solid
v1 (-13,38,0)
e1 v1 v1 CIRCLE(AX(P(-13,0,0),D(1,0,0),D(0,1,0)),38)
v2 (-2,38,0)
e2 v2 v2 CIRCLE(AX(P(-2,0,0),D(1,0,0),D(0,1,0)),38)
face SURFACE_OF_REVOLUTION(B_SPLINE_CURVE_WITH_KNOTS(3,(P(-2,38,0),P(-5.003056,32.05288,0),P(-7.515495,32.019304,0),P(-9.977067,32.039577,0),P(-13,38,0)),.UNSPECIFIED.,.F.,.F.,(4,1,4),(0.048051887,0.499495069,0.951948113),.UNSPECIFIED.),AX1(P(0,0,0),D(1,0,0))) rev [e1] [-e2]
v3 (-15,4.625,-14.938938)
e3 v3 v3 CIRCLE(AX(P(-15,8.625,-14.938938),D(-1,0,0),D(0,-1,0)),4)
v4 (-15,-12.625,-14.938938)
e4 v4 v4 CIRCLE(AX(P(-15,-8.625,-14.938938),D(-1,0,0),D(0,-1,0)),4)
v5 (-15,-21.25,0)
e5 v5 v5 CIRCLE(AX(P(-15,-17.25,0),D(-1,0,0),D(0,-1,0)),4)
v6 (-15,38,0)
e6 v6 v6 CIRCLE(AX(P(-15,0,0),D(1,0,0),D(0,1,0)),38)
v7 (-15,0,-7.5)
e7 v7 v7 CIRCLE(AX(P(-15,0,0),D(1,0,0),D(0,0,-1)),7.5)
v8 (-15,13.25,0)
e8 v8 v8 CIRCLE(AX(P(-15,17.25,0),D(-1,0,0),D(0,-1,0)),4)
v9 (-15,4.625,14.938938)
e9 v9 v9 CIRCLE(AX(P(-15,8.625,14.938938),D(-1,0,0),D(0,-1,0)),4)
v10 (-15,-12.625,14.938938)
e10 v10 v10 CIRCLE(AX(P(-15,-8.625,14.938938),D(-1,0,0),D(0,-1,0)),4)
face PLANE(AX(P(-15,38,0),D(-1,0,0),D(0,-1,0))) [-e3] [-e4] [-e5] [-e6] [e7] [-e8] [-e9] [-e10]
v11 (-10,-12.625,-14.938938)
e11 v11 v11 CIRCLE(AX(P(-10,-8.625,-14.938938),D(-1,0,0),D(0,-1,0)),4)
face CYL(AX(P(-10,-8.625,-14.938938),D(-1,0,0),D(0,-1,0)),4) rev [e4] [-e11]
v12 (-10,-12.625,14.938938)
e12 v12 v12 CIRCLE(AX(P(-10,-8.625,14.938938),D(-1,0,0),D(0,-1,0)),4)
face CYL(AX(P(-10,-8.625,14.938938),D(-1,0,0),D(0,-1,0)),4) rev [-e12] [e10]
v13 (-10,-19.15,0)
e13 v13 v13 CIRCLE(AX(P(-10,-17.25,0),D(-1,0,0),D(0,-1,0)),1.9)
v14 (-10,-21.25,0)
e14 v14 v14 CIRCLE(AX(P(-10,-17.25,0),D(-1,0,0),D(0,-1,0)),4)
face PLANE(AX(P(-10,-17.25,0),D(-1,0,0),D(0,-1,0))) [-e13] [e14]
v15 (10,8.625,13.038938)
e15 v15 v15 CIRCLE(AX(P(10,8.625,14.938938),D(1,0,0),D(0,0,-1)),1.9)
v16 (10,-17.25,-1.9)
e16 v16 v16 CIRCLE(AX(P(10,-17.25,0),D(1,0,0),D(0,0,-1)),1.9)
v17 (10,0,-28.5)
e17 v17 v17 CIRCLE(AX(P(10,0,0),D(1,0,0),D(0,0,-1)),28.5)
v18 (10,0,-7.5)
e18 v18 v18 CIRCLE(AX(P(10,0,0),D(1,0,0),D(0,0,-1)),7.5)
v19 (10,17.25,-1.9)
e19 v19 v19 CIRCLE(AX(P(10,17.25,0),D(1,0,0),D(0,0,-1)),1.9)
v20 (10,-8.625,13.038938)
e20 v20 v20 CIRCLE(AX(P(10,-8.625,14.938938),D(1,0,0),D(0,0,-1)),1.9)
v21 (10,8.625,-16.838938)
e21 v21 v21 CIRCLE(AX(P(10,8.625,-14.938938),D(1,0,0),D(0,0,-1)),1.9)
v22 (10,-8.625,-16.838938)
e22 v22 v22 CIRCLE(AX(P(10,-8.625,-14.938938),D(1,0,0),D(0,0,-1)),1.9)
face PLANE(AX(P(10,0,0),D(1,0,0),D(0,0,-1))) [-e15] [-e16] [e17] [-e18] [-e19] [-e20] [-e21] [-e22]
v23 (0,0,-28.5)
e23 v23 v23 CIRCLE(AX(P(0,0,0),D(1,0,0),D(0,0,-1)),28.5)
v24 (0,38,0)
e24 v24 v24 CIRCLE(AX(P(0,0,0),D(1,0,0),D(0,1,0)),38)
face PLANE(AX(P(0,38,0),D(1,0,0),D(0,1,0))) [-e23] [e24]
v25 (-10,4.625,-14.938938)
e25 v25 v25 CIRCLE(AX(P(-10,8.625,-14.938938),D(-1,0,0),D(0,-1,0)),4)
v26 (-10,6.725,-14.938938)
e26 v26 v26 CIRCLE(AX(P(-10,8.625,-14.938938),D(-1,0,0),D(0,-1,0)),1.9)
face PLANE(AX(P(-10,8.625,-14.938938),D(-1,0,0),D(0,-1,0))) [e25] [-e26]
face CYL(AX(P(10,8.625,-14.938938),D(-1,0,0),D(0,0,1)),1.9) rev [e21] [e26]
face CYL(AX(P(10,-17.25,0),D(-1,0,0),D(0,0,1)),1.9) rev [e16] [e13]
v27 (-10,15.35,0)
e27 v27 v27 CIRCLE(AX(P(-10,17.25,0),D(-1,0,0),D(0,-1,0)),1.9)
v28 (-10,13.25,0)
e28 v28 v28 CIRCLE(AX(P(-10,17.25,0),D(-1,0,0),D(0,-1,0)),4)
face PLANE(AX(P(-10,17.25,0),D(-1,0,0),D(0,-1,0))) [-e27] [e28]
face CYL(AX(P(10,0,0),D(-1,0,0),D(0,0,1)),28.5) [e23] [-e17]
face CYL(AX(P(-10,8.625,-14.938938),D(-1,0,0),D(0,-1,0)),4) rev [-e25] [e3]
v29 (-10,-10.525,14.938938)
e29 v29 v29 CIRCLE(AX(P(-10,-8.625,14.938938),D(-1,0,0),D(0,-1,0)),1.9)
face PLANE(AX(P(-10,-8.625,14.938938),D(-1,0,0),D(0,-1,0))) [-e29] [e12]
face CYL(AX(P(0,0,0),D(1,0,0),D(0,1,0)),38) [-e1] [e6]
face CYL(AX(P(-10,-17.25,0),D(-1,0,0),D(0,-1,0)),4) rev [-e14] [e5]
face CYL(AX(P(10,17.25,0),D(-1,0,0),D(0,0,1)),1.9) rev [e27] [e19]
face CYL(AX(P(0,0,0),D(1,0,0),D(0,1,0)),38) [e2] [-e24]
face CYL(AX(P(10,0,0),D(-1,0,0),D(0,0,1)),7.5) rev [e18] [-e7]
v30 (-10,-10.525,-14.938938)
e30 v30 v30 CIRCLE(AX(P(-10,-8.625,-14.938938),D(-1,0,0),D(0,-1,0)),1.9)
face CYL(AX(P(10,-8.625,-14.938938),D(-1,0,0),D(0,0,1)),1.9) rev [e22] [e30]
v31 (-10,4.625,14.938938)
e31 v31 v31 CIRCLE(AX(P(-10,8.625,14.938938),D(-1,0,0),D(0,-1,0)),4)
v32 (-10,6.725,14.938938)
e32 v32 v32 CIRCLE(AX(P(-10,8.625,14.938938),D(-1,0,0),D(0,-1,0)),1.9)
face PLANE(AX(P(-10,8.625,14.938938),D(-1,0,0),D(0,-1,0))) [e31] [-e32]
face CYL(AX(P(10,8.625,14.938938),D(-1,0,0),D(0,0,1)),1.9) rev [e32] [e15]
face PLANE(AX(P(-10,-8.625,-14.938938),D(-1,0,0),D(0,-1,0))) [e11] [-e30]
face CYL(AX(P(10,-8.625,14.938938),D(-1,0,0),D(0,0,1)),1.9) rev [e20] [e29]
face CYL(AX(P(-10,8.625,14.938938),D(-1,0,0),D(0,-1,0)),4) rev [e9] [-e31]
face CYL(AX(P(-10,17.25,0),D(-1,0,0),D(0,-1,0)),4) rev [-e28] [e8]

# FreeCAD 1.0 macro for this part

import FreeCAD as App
import Part
import Sketcher

doc = App.newDocument("Part")
params = doc.addObject("Spreadsheet::Sheet", "Params")
for row, (alias, value) in enumerate([
    ("sketch1_diameter", "57 mm"),
    ("sketch1_diameter2", "15 mm"),
    ("sketch1_diameter3", "3.8 mm"),
    ("pad1_length", "10 mm"),
    ("sketch2_width", "15 mm"),
    ("revolution_angle", "360 deg"),
    ("sketch3_diameter", "15 mm"),
    ("sketch3_diameter2", "3.8 mm"),
    ("sketch4_diameter", "8 mm"),
    ("pocket2_length", "5 mm"),
], start=1):
    params.set(f"A{row}", alias)
    params.set(f"B{row}", "=" + value)
    params.setAlias(f"B{row}", alias)

body = doc.addObject("PartDesign::Body", "Body")

sketch1 = body.newObject("Sketcher::SketchObject", "Sketch")
sketch1.AttachmentSupport = (doc.getObject("YZ_Plane"), [""])
sketch1.MapMode = "FlatFace"
sketch1.addGeometry(Part.Circle(App.Vector(0, 0, 0), App.Vector(0, 0, 1), 28.5), False)
sketch1.addGeometry(Part.Circle(App.Vector(-8.6, 14.9, 0), App.Vector(0, 0, 1), 1.9), False)
sketch1.addGeometry(Part.Circle(App.Vector(-17.2, 0, 0), App.Vector(0, 0, 1), 1.9), False)
sketch1.addGeometry(Part.Circle(App.Vector(-8.6, -14.9, 0), App.Vector(0, 0, 1), 1.9), False)
sketch1.addGeometry(Part.Circle(App.Vector(8.6, 14.9, 0), App.Vector(0, 0, 1), 1.9), False)
sketch1.addGeometry(Part.Circle(App.Vector(0, 0, 0), App.Vector(0, 0, 1), 7.5), False)
sketch1.addGeometry(Part.Circle(App.Vector(8.6, -14.9, 0), App.Vector(0, 0, 1), 1.9), False)
sketch1.addGeometry(Part.Circle(App.Vector(17.2, 0, 0), App.Vector(0, 0, 1), 1.9), False)
sketch1.addConstraint(Sketcher.Constraint("Coincident", 0, 3, -1, 1))
sketch1.addConstraint(Sketcher.Constraint("Coincident", 5, 3, -1, 1))
sketch1.addConstraint(Sketcher.Constraint("Equal", 1, 2))
sketch1.addConstraint(Sketcher.Constraint("Equal", 2, 3))
sketch1.addConstraint(Sketcher.Constraint("Equal", 3, 4))
sketch1.addConstraint(Sketcher.Constraint("Equal", 4, 6))
sketch1.addConstraint(Sketcher.Constraint("Equal", 6, 7))
sketch1.addConstraint(Sketcher.Constraint("Symmetric", 3, 3, 4, 3, -1, 1))
sketch1.addConstraint(Sketcher.Constraint("Symmetric", 1, 3, 6, 3, -1, 1))
sketch1.addConstraint(Sketcher.Constraint("Symmetric", 2, 3, 7, 3, -1, 1))
sketch1.addConstraint(Sketcher.Constraint("Symmetric", 1, 3, 4, 3, -2))
sketch1.addConstraint(Sketcher.Constraint("PointOnObject", 2, 3, -1))
sketch1.addConstraint(Sketcher.Constraint("Diameter", 0, 57.0))
sketch1.addConstraint(Sketcher.Constraint("Diameter", 5, 15.0))
sketch1.addConstraint(Sketcher.Constraint("Diameter", 1, 3.8))
sketch1.addConstraint(Sketcher.Constraint("DistanceX", 2, 3, -1, 1, 17.25))
sketch1.addConstraint(Sketcher.Constraint("DistanceX", 1, 3, 4, 3, 17.25))
sketch1.addConstraint(Sketcher.Constraint("DistanceY", -1, 1, 1, 3, 14.938938))
sketch1.setExpression("Constraints[12]", "Params.sketch1_diameter")
sketch1.setExpression("Constraints[13]", "Params.sketch1_diameter2")
sketch1.setExpression("Constraints[14]", "Params.sketch1_diameter3")
pad1 = body.newObject("PartDesign::Pad", "Pad")
pad1.Profile = sketch1
pad1.setExpression("Length", "Params.pad1_length")

sketch2 = body.newObject("Sketcher::SketchObject", "Sketch001")
sketch2.AttachmentSupport = (doc.getObject("XY_Plane"), [""])
sketch2.MapMode = "FlatFace"
sketch2.addGeometry(Part.LineSegment(App.Vector(-15, 0, 0), App.Vector(0, 0, 0)), False)
sketch2.addGeometry(Part.LineSegment(App.Vector(0, 0, 0), App.Vector(0, 38, 0)), False)
sketch2.addGeometry(Part.LineSegment(App.Vector(0, 38, 0), App.Vector(-2, 38, 0)), False)
sketch2.addGeometry(Part.BSplineCurve([App.Vector(-13, 38, 0), App.Vector(-9.977067, 32.039577, 0), App.Vector(-7.515495, 32.019304, 0), App.Vector(-5.003056, 32.05288, 0), App.Vector(-2, 38, 0)], [4, 1, 4], [0.048051887, 0.500504931, 0.951948113], False, 3, [1, 1, 1, 1, 1], False), False)
sketch2.addGeometry(Part.LineSegment(App.Vector(-13, 38, 0), App.Vector(-15, 38, 0)), False)
sketch2.addGeometry(Part.LineSegment(App.Vector(-15, 38, 0), App.Vector(-15, 0, 0)), False)
sketch2.addConstraint(Sketcher.Constraint("Block", 3))
sketch2.addConstraint(Sketcher.Constraint("Coincident", 0, 2, 1, 1))
sketch2.addConstraint(Sketcher.Constraint("Coincident", 1, 2, 2, 1))
sketch2.addConstraint(Sketcher.Constraint("Coincident", 2, 2, 3, 2))
sketch2.addConstraint(Sketcher.Constraint("Coincident", 3, 1, 4, 1))
sketch2.addConstraint(Sketcher.Constraint("Coincident", 4, 2, 5, 1))
sketch2.addConstraint(Sketcher.Constraint("Coincident", 5, 2, 0, 1))
sketch2.addConstraint(Sketcher.Constraint("Horizontal", 0))
sketch2.addConstraint(Sketcher.Constraint("Vertical", 1))
sketch2.addConstraint(Sketcher.Constraint("Horizontal", 2))
sketch2.addConstraint(Sketcher.Constraint("Horizontal", 4))
sketch2.addConstraint(Sketcher.Constraint("Vertical", 5))
sketch2.addConstraint(Sketcher.Constraint("Coincident", 0, 2, -1, 1))
sketch2.addConstraint(Sketcher.Constraint("DistanceX", 0, 1, 0, 2, 15.0))
sketch2.setExpression("Constraints[13]", "Params.sketch2_width")
revolution = body.newObject("PartDesign::Revolution", "Revolution")
revolution.Profile = sketch2
revolution.ReferenceAxis = (sketch2, ["H_Axis"])
revolution.setExpression("Angle", "Params.revolution_angle")

sketch3 = body.newObject("Sketcher::SketchObject", "Sketch002")
sketch3.AttachmentSupport = (doc.getObject("YZ_Plane"), [""])
sketch3.MapMode = "FlatFace"
sketch3.AttachmentOffset = App.Placement(App.Vector(0, 0, 10), App.Rotation())
sketch3.addGeometry(Part.Circle(App.Vector(8.6, -14.9, 0), App.Vector(0, 0, 1), 1.9), False)
sketch3.addGeometry(Part.Circle(App.Vector(-8.6, -14.9, 0), App.Vector(0, 0, 1), 1.9), False)
sketch3.addGeometry(Part.Circle(App.Vector(-17.2, 0, 0), App.Vector(0, 0, 1), 1.9), False)
sketch3.addGeometry(Part.Circle(App.Vector(-8.6, 14.9, 0), App.Vector(0, 0, 1), 1.9), False)
sketch3.addGeometry(Part.Circle(App.Vector(17.2, 0, 0), App.Vector(0, 0, 1), 1.9), False)
sketch3.addGeometry(Part.Circle(App.Vector(8.6, 14.9, 0), App.Vector(0, 0, 1), 1.9), False)
sketch3.addGeometry(Part.Circle(App.Vector(0, 0, 0), App.Vector(0, 0, 1), 7.5), False)
sketch3.addConstraint(Sketcher.Constraint("Coincident", 6, 3, -1, 1))
sketch3.addConstraint(Sketcher.Constraint("Equal", 0, 1))
sketch3.addConstraint(Sketcher.Constraint("Equal", 1, 2))
sketch3.addConstraint(Sketcher.Constraint("Equal", 2, 3))
sketch3.addConstraint(Sketcher.Constraint("Equal", 3, 4))
sketch3.addConstraint(Sketcher.Constraint("Equal", 4, 5))
sketch3.addConstraint(Sketcher.Constraint("Symmetric", 0, 3, 3, 3, -1, 1))
sketch3.addConstraint(Sketcher.Constraint("Symmetric", 2, 3, 4, 3, -1, 1))
sketch3.addConstraint(Sketcher.Constraint("Symmetric", 1, 3, 5, 3, -1, 1))
sketch3.addConstraint(Sketcher.Constraint("Symmetric", 0, 3, 1, 3, -2))
sketch3.addConstraint(Sketcher.Constraint("PointOnObject", 2, 3, -1))
sketch3.addConstraint(Sketcher.Constraint("Diameter", 6, 15.0))
sketch3.addConstraint(Sketcher.Constraint("Diameter", 0, 3.8))
sketch3.addConstraint(Sketcher.Constraint("DistanceX", 2, 3, 4, 3, 34.5))
sketch3.addConstraint(Sketcher.Constraint("DistanceX", 1, 3, 0, 3, 17.25))
sketch3.addConstraint(Sketcher.Constraint("DistanceY", 0, 3, -1, 1, 14.938938))
sketch3.setExpression("Constraints[11]", "Params.sketch3_diameter")
sketch3.setExpression("Constraints[12]", "Params.sketch3_diameter2")
pocket1 = body.newObject("PartDesign::Pocket", "Pocket")
pocket1.Profile = sketch3
pocket1.Type = "ThroughAll"

sketch4 = body.newObject("Sketcher::SketchObject", "Sketch003")
sketch4.AttachmentSupport = (doc.getObject("YZ_Plane"), [""])
sketch4.MapMode = "FlatFace"
sketch4.AttachmentOffset = App.Placement(App.Vector(0, 0, -15), App.Rotation())
sketch4.addGeometry(Part.Circle(App.Vector(8.6, 14.9, 0), App.Vector(0, 0, 1), 4), False)
sketch4.addGeometry(Part.Circle(App.Vector(-8.6, 14.9, 0), App.Vector(0, 0, 1), 4), False)
sketch4.addGeometry(Part.Circle(App.Vector(-17.2, 0, 0), App.Vector(0, 0, 1), 4), False)
sketch4.addGeometry(Part.Circle(App.Vector(-8.6, -14.9, 0), App.Vector(0, 0, 1), 4), False)
sketch4.addGeometry(Part.Circle(App.Vector(8.6, -14.9, 0), App.Vector(0, 0, 1), 4), False)
sketch4.addGeometry(Part.Circle(App.Vector(17.2, 0, 0), App.Vector(0, 0, 1), 4), False)
sketch4.addConstraint(Sketcher.Constraint("Equal", 0, 1))
sketch4.addConstraint(Sketcher.Constraint("Equal", 1, 2))
sketch4.addConstraint(Sketcher.Constraint("Equal", 2, 3))
sketch4.addConstraint(Sketcher.Constraint("Equal", 3, 4))
sketch4.addConstraint(Sketcher.Constraint("Equal", 4, 5))
sketch4.addConstraint(Sketcher.Constraint("Symmetric", 0, 3, 3, 3, -1, 1))
sketch4.addConstraint(Sketcher.Constraint("Symmetric", 1, 3, 4, 3, -1, 1))
sketch4.addConstraint(Sketcher.Constraint("Symmetric", 2, 3, 5, 3, -1, 1))
sketch4.addConstraint(Sketcher.Constraint("Symmetric", 0, 3, 1, 3, -2))
sketch4.addConstraint(Sketcher.Constraint("PointOnObject", 2, 3, -1))
sketch4.addConstraint(Sketcher.Constraint("Diameter", 0, 8.0))
sketch4.addConstraint(Sketcher.Constraint("DistanceX", 2, 3, 5, 3, 34.5))
sketch4.addConstraint(Sketcher.Constraint("DistanceX", 1, 3, 0, 3, 17.25))
sketch4.addConstraint(Sketcher.Constraint("DistanceY", -1, 1, 0, 3, 14.938938))
sketch4.setExpression("Constraints[10]", "Params.sketch4_diameter")
pocket2 = body.newObject("PartDesign::Pocket", "Pocket001")
pocket2.Profile = sketch4
pocket2.setExpression("Length", "Params.pocket2_length")
pocket2.Reversed = True

doc.recompute()
